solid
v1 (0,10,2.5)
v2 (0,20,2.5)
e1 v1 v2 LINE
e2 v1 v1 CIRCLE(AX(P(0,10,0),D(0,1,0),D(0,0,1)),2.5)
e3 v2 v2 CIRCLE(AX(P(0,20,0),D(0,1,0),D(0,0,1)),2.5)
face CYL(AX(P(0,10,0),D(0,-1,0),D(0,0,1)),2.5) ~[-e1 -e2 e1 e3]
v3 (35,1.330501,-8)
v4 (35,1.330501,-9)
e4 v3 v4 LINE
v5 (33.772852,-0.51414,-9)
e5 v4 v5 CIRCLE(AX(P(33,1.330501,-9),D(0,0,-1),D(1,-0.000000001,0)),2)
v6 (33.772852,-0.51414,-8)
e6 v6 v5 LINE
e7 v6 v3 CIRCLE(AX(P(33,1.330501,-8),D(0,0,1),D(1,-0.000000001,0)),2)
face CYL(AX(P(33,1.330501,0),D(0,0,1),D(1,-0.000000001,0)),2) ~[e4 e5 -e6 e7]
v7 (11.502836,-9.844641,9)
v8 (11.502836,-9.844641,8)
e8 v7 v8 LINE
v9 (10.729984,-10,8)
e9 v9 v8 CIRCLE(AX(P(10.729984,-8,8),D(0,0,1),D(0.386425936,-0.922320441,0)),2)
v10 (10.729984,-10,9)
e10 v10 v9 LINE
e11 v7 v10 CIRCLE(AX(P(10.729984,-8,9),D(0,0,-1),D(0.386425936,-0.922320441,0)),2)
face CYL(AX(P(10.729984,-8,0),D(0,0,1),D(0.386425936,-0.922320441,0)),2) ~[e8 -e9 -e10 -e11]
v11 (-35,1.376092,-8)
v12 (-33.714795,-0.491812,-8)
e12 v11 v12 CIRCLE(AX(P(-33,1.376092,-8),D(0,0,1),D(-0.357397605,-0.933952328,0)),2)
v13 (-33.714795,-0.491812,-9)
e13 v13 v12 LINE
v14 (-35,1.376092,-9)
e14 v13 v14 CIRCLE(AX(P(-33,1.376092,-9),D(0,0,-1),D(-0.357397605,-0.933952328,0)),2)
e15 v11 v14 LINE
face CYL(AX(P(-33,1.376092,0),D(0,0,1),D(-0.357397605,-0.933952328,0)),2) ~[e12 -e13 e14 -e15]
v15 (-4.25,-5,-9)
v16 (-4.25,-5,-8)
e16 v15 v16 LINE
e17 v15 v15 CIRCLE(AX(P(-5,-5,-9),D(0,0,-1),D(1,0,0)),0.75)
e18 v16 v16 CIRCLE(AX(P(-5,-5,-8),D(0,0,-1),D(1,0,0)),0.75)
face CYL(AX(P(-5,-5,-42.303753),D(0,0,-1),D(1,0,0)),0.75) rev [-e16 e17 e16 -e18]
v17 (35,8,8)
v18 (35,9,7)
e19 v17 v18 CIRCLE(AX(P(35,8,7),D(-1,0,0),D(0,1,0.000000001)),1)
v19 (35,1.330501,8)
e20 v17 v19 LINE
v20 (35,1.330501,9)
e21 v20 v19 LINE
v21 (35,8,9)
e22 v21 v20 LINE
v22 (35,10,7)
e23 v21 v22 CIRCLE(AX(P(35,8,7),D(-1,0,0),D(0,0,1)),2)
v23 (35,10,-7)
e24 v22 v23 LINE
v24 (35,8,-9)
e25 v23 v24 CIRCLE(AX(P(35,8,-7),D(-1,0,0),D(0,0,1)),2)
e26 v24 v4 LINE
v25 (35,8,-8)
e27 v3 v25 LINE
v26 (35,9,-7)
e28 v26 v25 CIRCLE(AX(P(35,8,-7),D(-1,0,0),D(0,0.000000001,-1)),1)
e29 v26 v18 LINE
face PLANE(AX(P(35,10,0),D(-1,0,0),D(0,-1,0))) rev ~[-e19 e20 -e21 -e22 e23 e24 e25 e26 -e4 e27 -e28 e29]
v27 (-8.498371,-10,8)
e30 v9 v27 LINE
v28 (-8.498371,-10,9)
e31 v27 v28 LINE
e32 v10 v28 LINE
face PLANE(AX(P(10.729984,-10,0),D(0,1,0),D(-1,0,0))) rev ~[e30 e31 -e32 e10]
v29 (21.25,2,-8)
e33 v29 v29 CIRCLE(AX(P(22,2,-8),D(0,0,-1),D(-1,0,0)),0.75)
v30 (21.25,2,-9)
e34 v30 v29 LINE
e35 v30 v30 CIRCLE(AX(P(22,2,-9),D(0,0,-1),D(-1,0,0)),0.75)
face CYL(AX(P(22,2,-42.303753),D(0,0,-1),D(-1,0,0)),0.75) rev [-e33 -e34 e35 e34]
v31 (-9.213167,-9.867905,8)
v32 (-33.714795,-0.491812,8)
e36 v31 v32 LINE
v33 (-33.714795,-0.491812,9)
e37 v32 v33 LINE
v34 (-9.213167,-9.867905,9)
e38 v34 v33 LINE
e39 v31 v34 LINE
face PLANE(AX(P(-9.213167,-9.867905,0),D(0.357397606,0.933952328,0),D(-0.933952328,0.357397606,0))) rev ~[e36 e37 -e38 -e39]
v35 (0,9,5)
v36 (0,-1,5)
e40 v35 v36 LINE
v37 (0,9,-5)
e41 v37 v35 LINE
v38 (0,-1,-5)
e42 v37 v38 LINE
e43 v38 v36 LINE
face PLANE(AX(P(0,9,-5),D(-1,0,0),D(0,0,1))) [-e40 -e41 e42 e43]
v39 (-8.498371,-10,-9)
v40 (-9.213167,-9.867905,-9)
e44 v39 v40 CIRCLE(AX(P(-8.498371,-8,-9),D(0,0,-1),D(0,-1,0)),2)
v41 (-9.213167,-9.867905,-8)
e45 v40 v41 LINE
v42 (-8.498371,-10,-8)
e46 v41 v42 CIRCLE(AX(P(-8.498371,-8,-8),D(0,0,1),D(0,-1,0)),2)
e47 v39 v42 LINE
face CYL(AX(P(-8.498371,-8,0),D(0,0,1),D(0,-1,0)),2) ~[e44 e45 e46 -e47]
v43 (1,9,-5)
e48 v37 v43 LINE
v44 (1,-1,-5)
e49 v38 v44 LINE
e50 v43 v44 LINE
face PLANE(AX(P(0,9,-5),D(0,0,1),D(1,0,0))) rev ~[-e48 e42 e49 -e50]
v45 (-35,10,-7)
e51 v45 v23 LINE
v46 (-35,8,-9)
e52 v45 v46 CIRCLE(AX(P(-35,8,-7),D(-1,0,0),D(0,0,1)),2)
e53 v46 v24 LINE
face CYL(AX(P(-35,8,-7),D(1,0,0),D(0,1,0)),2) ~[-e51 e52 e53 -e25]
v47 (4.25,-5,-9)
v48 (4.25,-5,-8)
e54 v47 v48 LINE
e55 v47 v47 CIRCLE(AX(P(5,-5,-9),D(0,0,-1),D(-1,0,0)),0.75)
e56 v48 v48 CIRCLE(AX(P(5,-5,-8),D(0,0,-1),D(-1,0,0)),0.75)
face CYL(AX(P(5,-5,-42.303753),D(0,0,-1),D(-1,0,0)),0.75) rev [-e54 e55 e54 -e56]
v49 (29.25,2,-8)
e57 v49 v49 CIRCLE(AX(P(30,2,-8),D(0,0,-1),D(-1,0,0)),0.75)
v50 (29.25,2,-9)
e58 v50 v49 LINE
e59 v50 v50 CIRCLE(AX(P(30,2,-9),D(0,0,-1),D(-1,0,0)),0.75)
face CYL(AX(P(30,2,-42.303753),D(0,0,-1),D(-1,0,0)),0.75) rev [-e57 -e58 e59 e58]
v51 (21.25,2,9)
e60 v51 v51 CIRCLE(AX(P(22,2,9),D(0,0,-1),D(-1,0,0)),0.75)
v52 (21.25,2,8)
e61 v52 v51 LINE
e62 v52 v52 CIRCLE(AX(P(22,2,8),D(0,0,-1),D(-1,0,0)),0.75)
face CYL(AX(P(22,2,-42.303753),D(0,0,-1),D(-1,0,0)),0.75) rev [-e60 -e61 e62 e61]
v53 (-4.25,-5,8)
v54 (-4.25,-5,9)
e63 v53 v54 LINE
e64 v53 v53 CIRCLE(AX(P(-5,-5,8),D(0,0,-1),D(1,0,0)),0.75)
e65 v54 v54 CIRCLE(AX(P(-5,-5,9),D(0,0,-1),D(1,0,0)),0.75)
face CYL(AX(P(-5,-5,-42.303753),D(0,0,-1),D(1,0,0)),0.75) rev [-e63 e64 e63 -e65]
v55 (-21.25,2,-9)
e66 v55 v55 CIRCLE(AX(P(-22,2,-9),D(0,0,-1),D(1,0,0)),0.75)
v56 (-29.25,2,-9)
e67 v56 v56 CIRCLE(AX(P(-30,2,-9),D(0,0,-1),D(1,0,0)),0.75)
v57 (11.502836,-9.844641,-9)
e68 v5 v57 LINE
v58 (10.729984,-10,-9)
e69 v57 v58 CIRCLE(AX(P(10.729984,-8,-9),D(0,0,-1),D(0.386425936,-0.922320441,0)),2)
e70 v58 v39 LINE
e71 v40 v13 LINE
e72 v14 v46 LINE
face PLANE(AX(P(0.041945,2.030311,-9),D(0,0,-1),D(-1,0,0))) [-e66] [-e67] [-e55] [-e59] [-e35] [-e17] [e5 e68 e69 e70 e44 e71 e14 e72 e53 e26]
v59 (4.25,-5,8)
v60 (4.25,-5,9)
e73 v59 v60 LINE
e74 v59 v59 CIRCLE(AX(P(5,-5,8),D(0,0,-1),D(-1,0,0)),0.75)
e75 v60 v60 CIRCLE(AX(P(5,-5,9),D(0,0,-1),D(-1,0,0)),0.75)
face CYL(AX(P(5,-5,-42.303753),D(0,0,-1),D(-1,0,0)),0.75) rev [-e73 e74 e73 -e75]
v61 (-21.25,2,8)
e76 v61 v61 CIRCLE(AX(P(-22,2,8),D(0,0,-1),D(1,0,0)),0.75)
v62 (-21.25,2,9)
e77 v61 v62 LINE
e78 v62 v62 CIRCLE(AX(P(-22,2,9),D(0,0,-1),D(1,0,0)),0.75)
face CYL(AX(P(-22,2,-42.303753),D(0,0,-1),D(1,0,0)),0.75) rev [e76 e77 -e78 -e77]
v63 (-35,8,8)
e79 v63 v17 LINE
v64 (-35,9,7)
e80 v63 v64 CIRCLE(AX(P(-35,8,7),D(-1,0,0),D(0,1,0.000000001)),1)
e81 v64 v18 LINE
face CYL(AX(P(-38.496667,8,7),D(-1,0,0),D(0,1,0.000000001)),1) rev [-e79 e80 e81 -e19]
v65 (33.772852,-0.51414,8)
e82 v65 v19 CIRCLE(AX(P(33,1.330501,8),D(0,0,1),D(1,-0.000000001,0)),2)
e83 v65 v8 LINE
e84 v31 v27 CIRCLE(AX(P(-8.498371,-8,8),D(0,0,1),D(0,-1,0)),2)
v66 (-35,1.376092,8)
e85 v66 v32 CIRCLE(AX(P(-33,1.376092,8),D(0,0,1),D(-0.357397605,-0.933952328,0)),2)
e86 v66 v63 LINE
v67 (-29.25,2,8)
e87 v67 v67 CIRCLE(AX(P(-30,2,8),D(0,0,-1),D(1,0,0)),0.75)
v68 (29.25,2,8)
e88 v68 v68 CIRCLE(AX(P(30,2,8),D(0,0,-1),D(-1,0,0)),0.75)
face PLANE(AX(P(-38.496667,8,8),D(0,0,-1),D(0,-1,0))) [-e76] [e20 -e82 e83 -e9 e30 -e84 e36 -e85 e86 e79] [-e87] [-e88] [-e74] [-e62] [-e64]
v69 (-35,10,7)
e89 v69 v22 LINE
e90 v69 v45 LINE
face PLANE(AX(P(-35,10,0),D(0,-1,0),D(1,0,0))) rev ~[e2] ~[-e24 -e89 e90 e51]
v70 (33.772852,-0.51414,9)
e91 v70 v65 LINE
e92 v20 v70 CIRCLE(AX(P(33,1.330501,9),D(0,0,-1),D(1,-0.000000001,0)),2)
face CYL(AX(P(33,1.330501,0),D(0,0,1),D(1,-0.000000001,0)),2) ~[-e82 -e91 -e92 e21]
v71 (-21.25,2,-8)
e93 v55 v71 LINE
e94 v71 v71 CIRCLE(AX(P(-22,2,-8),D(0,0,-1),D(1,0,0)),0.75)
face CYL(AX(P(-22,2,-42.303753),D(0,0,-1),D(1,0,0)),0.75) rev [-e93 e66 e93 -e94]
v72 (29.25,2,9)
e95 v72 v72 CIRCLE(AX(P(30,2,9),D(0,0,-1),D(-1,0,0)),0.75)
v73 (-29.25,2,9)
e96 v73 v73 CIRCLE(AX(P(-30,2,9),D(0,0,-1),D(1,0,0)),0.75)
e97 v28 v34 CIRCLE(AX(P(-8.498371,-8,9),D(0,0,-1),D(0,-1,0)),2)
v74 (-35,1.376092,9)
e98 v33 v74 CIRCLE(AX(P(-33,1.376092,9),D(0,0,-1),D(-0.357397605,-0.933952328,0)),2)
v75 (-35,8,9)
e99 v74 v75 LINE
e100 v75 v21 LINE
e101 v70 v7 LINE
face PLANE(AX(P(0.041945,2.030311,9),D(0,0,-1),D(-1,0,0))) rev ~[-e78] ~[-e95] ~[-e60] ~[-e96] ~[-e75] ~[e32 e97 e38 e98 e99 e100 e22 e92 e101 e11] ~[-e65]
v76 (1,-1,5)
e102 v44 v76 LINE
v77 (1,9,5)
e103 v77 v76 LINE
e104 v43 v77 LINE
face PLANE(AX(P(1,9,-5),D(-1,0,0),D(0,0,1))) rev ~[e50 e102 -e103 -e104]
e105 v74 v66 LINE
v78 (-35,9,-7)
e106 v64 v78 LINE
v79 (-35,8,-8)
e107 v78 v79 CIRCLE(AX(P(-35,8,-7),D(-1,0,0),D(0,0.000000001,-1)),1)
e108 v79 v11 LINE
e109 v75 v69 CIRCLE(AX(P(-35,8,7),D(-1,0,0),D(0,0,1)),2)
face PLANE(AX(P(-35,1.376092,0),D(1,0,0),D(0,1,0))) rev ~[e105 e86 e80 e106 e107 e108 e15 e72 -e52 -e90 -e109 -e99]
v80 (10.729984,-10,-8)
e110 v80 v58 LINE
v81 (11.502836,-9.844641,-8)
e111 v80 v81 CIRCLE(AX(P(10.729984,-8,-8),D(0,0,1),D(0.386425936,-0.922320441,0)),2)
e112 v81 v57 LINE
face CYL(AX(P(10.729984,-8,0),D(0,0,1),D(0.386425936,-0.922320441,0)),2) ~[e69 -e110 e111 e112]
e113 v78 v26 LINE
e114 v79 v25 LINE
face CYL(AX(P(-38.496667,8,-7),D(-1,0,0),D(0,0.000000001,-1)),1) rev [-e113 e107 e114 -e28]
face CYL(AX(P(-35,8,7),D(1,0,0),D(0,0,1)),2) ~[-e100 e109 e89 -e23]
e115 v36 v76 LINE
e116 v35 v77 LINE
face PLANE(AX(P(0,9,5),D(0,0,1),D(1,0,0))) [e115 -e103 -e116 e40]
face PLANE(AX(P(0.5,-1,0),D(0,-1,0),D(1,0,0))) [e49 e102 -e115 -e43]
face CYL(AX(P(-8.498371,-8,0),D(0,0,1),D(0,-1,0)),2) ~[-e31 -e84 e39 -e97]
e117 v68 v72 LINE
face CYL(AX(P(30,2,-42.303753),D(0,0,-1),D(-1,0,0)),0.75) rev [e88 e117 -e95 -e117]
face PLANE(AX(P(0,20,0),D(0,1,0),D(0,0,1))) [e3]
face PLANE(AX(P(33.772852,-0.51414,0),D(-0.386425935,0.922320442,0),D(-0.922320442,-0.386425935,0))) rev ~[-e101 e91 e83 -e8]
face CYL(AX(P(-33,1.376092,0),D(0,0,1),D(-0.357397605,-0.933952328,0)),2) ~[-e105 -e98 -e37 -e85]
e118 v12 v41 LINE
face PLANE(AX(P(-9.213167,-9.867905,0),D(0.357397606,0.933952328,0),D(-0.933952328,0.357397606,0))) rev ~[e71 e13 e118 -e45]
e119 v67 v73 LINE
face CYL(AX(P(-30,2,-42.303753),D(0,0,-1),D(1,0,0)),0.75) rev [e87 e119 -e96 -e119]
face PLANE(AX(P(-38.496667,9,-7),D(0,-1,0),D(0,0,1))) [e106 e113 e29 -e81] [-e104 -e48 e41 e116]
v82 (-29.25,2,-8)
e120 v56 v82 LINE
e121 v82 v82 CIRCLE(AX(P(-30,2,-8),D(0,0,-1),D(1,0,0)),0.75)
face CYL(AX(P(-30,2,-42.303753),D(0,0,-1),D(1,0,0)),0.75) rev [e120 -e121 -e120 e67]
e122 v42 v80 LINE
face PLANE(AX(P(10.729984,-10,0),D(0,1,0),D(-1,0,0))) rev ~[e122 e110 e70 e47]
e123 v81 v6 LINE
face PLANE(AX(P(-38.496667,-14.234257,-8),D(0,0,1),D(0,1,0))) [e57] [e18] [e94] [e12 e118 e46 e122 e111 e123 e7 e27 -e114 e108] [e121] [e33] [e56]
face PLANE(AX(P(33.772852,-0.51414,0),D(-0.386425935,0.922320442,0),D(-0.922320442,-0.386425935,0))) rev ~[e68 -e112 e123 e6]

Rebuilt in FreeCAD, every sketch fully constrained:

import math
import FreeCAD as App
import Part
import Sketcher
from FreeCAD import Vector


def edges_at(feature, points):
    """Names of the edges that pass closest to the given points."""
    edges = feature.Shape.Edges
    near = lambda p: min(range(len(edges)), key=lambda i: edges[i].distToShape(Part.Vertex(*p))[0])
    return sorted({f"Edge{near(p) + 1}" for p in points})


def add_polygon(sketch, points):
    """Adds a closed chain of lines whose ends are joined by coincident constraints."""
    first, n = sketch.GeometryCount, len(points)
    for a, b in zip(points, points[1:] + points[:1]):
        sketch.addGeometry(Part.LineSegment(App.Vector(*a, 0), App.Vector(*b, 0)), False)
    for i in range(n):
        sketch.addConstraint(Sketcher.Constraint("Coincident", first + i, 2, first + (i + 1) % n, 1))

doc = App.newDocument("Part")
body = doc.addObject("PartDesign::Body", "Body")

sketch1 = body.newObject("Sketcher::SketchObject", "Sketch")
sketch1.AttachmentSupport = (doc.getObject("XY_Plane"), [""])
sketch1.MapMode = "FlatFace"
sketch1.addGeometry(Part.ArcOfCircle(Part.Circle(Vector(-33, 1.4, 0), Vector(0, 0, 1), 2), math.radians(180), math.radians(249)), False)
sketch1.addGeometry(Part.LineSegment(Vector(-33.7, -0.5, 0), Vector(-9.2, -9.9, 0)), False)
sketch1.addGeometry(Part.ArcOfCircle(Part.Circle(Vector(-8.5, -8, 0), Vector(0, 0, 1), 2), math.radians(-111), math.radians(-90)), False)
sketch1.addGeometry(Part.LineSegment(Vector(-8.5, -10, 0), Vector(10.7, -10, 0)), False)
sketch1.addGeometry(Part.ArcOfCircle(Part.Circle(Vector(10.7, -8, 0), Vector(0, 0, 1), 2), math.radians(-90), math.radians(-67)), False)
sketch1.addGeometry(Part.LineSegment(Vector(11.5, -9.8, 0), Vector(33.8, -0.5, 0)), False)
sketch1.addGeometry(Part.ArcOfCircle(Part.Circle(Vector(33, 1.3, 0), Vector(0, 0, 1), 2), math.radians(-67), math.radians(0)), False)
sketch1.addGeometry(Part.LineSegment(Vector(35, 1.3, 0), Vector(35, 10, 0)), False)
sketch1.addGeometry(Part.LineSegment(Vector(35, 10, 0), Vector(-35, 10, 0)), False)
sketch1.addGeometry(Part.LineSegment(Vector(-35, 10, 0), Vector(-35, 1.4, 0)), False)
sketch1.addConstraint(Sketcher.Constraint("Tangent", 0, 2, 1, 1))
sketch1.addConstraint(Sketcher.Constraint("Tangent", 1, 2, 2, 1))
sketch1.addConstraint(Sketcher.Constraint("Tangent", 2, 2, 3, 1))
sketch1.addConstraint(Sketcher.Constraint("Tangent", 3, 2, 4, 1))
sketch1.addConstraint(Sketcher.Constraint("Tangent", 4, 2, 5, 1))
sketch1.addConstraint(Sketcher.Constraint("Tangent", 5, 2, 6, 1))
sketch1.addConstraint(Sketcher.Constraint("Tangent", 6, 2, 7, 1))
sketch1.addConstraint(Sketcher.Constraint("Coincident", 7, 2, 8, 1))
sketch1.addConstraint(Sketcher.Constraint("Coincident", 8, 2, 9, 1))
sketch1.addConstraint(Sketcher.Constraint("Tangent", 9, 2, 0, 1))
sketch1.addConstraint(Sketcher.Constraint("Horizontal", 3))
sketch1.addConstraint(Sketcher.Constraint("Vertical", 7))
sketch1.addConstraint(Sketcher.Constraint("Horizontal", 8))
sketch1.addConstraint(Sketcher.Constraint("Vertical", 9))
sketch1.addConstraint(Sketcher.Constraint("Equal", 0, 2))
sketch1.addConstraint(Sketcher.Constraint("Equal", 2, 4))
sketch1.addConstraint(Sketcher.Constraint("Equal", 4, 6))
sketch1.addConstraint(Sketcher.Constraint("Radius", 0, 2.0))
sketch1.addConstraint(Sketcher.Constraint("DistanceX", 8, 2, 8, 1, 70.0))
sketch1.addConstraint(Sketcher.Constraint("DistanceX", 0, 3, -1, 1, 33.0))
sketch1.addConstraint(Sketcher.Constraint("DistanceY", 2, 3, -1, 1, 8.0))
sketch1.addConstraint(Sketcher.Constraint("DistanceY", -1, 1, 7, 2, 10.0))
sketch1.addConstraint(Sketcher.Constraint("DistanceY", 7, 1, 7, 2, 8.669499))
sketch1.addConstraint(Sketcher.Constraint("Distance", 5, 24.145638))
sketch1.addConstraint(Sketcher.Constraint("DistanceX", 3, 1, 3, 2, 19.228356))
sketch1.addConstraint(Sketcher.Constraint("DistanceY", 9, 2, 9, 1, 8.623908))
pad1 = body.newObject("PartDesign::Pad", "Pad")
pad1.Profile = sketch1
pad1.Length = 18
pad1.Midplane = True
doc.recompute()

fillet = body.newObject("PartDesign::Fillet", "Fillet")
fillet.Base = (pad1, edges_at(pad1, [(0, 10, -9), (0, 10, 9)]))
fillet.Radius = 2

sketch2 = body.newObject("Sketcher::SketchObject", "Sketch001")
sketch2.AttachmentSupport = (doc.getObject("YZ_Plane"), [""])
sketch2.MapMode = "FlatFace"
sketch2.addGeometry(Part.LineSegment(Vector(8, 8, 0), Vector(-14.2, 8, 0)), False)
sketch2.addGeometry(Part.LineSegment(Vector(-14.2, 8, 0), Vector(-14.2, -8, 0)), False)
sketch2.addGeometry(Part.LineSegment(Vector(-14.2, -8, 0), Vector(8, -8, 0)), False)
sketch2.addGeometry(Part.ArcOfCircle(Part.Circle(Vector(8, -7, 0), Vector(0, 0, 1), 1), math.radians(-90), math.radians(0)), False)
sketch2.addGeometry(Part.LineSegment(Vector(9, -7, 0), Vector(9, 7, 0)), False)
sketch2.addGeometry(Part.ArcOfCircle(Part.Circle(Vector(8, 7, 0), Vector(0, 0, 1), 1), math.radians(0), math.radians(90)), False)
sketch2.addConstraint(Sketcher.Constraint("Coincident", 0, 2, 1, 1))
sketch2.addConstraint(Sketcher.Constraint("Coincident", 1, 2, 2, 1))
sketch2.addConstraint(Sketcher.Constraint("Tangent", 2, 2, 3, 1))
sketch2.addConstraint(Sketcher.Constraint("Tangent", 3, 2, 4, 1))
sketch2.addConstraint(Sketcher.Constraint("Tangent", 4, 2, 5, 1))
sketch2.addConstraint(Sketcher.Constraint("Tangent", 5, 2, 0, 1))
sketch2.addConstraint(Sketcher.Constraint("Horizontal", 0))
sketch2.addConstraint(Sketcher.Constraint("Vertical", 1))
sketch2.addConstraint(Sketcher.Constraint("Horizontal", 2))
sketch2.addConstraint(Sketcher.Constraint("Vertical", 4))
sketch2.addConstraint(Sketcher.Constraint("Equal", 3, 5))
sketch2.addConstraint(Sketcher.Constraint("Radius", 3, 1.0))
sketch2.addConstraint(Sketcher.Constraint("DistanceY", 1, 2, 1, 1, 16.0))
sketch2.addConstraint(Sketcher.Constraint("DistanceX", -1, 1, 3, 3, 8.0))
sketch2.addConstraint(Sketcher.Constraint("DistanceY", 3, 3, -1, 1, 7.0))
sketch2.addConstraint(Sketcher.Constraint("DistanceX", 0, 2, 0, 1, 22.234257))
pocket1 = body.newObject("PartDesign::Pocket", "Pocket")
pocket1.Profile = sketch2
pocket1.Type = "ThroughAll"
pocket1.Midplane = True

sketch3 = body.newObject("Sketcher::SketchObject", "Sketch002")
sketch3.AttachmentSupport = (doc.getObject("XZ_Plane"), [""])
sketch3.MapMode = "FlatFace"
sketch3.AttachmentOffset = App.Placement(Vector(0, 0, -10), App.Rotation())
sketch3.addGeometry(Part.Circle(Vector(0, 0, 0), Vector(0, 0, 1), 2.5), False)
sketch3.addConstraint(Sketcher.Constraint("Coincident", 0, 3, -1, 1))
sketch3.addConstraint(Sketcher.Constraint("Diameter", 0, 5.0))
pad2 = body.newObject("PartDesign::Pad", "Pad001")
pad2.Profile = sketch3
pad2.Length = 10
pad2.Reversed = True

sketch4 = body.newObject("Sketcher::SketchObject", "Sketch003")
sketch4.AttachmentSupport = (doc.getObject("XY_Plane"), [""])
sketch4.MapMode = "FlatFace"
sketch4.addGeometry(Part.Circle(Vector(-30, 2, 0), Vector(0, 0, 1), 0.8), False)
sketch4.addGeometry(Part.Circle(Vector(-22, 2, 0), Vector(0, 0, 1), 0.8), False)
sketch4.addGeometry(Part.Circle(Vector(-5, -5, 0), Vector(0, 0, 1), 0.8), False)
sketch4.addGeometry(Part.Circle(Vector(5, -5, 0), Vector(0, 0, 1), 0.8), False)
sketch4.addGeometry(Part.Circle(Vector(22, 2, 0), Vector(0, 0, 1), 0.8), False)
sketch4.addGeometry(Part.Circle(Vector(30, 2, 0), Vector(0, 0, 1), 0.8), False)
sketch4.addConstraint(Sketcher.Constraint("Equal", 0, 1))
sketch4.addConstraint(Sketcher.Constraint("Equal", 1, 2))
sketch4.addConstraint(Sketcher.Constraint("Equal", 2, 3))
sketch4.addConstraint(Sketcher.Constraint("Equal", 3, 4))
sketch4.addConstraint(Sketcher.Constraint("Equal", 4, 5))
sketch4.addConstraint(Sketcher.Constraint("Symmetric", 2, 3, 3, 3, -2))
sketch4.addConstraint(Sketcher.Constraint("Symmetric", 1, 3, 4, 3, -2))
sketch4.addConstraint(Sketcher.Constraint("Symmetric", 0, 3, 5, 3, -2))
sketch4.addConstraint(Sketcher.Constraint("Horizontal", 0, 3, 1, 3))
sketch4.addConstraint(Sketcher.Constraint("Diameter", 0, 1.5))
sketch4.addConstraint(Sketcher.Constraint("DistanceX", 0, 3, -1, 1, 30.0))
sketch4.addConstraint(Sketcher.Constraint("DistanceY", -1, 1, 0, 3, 2.0))
sketch4.addConstraint(Sketcher.Constraint("DistanceX", 1, 3, -1, 1, 22.0))
sketch4.addConstraint(Sketcher.Constraint("DistanceX", 2, 3, -1, 1, 5.0))
sketch4.addConstraint(Sketcher.Constraint("DistanceY", 2, 3, -1, 1, 5.0))
pocket2 = body.newObject("PartDesign::Pocket", "Pocket001")
pocket2.Profile = sketch4
pocket2.Type = "ThroughAll"
pocket2.Midplane = True

sketch5 = body.newObject("Sketcher::SketchObject", "Sketch004")
sketch5.AttachmentSupport = (doc.getObject("XZ_Plane"), [""])
sketch5.MapMode = "FlatFace"
sketch5.AttachmentOffset = App.Placement(Vector(0, 0, -9), App.Rotation())
add_polygon(sketch5, [(0, 5), (0, -5), (1, -5), (1, 5)])
sketch5.addConstraint(Sketcher.Constraint("Vertical", 0))
sketch5.addConstraint(Sketcher.Constraint("Horizontal", 1))
sketch5.addConstraint(Sketcher.Constraint("Vertical", 2))
sketch5.addConstraint(Sketcher.Constraint("Horizontal", 3))
sketch5.addConstraint(Sketcher.Constraint("Symmetric", 0, 2, 3, 2, -1, 1))
sketch5.addConstraint(Sketcher.Constraint("DistanceX", 1, 1, 1, 2, 1.0))
sketch5.addConstraint(Sketcher.Constraint("DistanceY", 0, 2, 0, 1, 10.0))
pad3 = body.newObject("PartDesign::Pad", "Pad002")
pad3.Profile = sketch5
pad3.Length = 10

doc.recompute()
